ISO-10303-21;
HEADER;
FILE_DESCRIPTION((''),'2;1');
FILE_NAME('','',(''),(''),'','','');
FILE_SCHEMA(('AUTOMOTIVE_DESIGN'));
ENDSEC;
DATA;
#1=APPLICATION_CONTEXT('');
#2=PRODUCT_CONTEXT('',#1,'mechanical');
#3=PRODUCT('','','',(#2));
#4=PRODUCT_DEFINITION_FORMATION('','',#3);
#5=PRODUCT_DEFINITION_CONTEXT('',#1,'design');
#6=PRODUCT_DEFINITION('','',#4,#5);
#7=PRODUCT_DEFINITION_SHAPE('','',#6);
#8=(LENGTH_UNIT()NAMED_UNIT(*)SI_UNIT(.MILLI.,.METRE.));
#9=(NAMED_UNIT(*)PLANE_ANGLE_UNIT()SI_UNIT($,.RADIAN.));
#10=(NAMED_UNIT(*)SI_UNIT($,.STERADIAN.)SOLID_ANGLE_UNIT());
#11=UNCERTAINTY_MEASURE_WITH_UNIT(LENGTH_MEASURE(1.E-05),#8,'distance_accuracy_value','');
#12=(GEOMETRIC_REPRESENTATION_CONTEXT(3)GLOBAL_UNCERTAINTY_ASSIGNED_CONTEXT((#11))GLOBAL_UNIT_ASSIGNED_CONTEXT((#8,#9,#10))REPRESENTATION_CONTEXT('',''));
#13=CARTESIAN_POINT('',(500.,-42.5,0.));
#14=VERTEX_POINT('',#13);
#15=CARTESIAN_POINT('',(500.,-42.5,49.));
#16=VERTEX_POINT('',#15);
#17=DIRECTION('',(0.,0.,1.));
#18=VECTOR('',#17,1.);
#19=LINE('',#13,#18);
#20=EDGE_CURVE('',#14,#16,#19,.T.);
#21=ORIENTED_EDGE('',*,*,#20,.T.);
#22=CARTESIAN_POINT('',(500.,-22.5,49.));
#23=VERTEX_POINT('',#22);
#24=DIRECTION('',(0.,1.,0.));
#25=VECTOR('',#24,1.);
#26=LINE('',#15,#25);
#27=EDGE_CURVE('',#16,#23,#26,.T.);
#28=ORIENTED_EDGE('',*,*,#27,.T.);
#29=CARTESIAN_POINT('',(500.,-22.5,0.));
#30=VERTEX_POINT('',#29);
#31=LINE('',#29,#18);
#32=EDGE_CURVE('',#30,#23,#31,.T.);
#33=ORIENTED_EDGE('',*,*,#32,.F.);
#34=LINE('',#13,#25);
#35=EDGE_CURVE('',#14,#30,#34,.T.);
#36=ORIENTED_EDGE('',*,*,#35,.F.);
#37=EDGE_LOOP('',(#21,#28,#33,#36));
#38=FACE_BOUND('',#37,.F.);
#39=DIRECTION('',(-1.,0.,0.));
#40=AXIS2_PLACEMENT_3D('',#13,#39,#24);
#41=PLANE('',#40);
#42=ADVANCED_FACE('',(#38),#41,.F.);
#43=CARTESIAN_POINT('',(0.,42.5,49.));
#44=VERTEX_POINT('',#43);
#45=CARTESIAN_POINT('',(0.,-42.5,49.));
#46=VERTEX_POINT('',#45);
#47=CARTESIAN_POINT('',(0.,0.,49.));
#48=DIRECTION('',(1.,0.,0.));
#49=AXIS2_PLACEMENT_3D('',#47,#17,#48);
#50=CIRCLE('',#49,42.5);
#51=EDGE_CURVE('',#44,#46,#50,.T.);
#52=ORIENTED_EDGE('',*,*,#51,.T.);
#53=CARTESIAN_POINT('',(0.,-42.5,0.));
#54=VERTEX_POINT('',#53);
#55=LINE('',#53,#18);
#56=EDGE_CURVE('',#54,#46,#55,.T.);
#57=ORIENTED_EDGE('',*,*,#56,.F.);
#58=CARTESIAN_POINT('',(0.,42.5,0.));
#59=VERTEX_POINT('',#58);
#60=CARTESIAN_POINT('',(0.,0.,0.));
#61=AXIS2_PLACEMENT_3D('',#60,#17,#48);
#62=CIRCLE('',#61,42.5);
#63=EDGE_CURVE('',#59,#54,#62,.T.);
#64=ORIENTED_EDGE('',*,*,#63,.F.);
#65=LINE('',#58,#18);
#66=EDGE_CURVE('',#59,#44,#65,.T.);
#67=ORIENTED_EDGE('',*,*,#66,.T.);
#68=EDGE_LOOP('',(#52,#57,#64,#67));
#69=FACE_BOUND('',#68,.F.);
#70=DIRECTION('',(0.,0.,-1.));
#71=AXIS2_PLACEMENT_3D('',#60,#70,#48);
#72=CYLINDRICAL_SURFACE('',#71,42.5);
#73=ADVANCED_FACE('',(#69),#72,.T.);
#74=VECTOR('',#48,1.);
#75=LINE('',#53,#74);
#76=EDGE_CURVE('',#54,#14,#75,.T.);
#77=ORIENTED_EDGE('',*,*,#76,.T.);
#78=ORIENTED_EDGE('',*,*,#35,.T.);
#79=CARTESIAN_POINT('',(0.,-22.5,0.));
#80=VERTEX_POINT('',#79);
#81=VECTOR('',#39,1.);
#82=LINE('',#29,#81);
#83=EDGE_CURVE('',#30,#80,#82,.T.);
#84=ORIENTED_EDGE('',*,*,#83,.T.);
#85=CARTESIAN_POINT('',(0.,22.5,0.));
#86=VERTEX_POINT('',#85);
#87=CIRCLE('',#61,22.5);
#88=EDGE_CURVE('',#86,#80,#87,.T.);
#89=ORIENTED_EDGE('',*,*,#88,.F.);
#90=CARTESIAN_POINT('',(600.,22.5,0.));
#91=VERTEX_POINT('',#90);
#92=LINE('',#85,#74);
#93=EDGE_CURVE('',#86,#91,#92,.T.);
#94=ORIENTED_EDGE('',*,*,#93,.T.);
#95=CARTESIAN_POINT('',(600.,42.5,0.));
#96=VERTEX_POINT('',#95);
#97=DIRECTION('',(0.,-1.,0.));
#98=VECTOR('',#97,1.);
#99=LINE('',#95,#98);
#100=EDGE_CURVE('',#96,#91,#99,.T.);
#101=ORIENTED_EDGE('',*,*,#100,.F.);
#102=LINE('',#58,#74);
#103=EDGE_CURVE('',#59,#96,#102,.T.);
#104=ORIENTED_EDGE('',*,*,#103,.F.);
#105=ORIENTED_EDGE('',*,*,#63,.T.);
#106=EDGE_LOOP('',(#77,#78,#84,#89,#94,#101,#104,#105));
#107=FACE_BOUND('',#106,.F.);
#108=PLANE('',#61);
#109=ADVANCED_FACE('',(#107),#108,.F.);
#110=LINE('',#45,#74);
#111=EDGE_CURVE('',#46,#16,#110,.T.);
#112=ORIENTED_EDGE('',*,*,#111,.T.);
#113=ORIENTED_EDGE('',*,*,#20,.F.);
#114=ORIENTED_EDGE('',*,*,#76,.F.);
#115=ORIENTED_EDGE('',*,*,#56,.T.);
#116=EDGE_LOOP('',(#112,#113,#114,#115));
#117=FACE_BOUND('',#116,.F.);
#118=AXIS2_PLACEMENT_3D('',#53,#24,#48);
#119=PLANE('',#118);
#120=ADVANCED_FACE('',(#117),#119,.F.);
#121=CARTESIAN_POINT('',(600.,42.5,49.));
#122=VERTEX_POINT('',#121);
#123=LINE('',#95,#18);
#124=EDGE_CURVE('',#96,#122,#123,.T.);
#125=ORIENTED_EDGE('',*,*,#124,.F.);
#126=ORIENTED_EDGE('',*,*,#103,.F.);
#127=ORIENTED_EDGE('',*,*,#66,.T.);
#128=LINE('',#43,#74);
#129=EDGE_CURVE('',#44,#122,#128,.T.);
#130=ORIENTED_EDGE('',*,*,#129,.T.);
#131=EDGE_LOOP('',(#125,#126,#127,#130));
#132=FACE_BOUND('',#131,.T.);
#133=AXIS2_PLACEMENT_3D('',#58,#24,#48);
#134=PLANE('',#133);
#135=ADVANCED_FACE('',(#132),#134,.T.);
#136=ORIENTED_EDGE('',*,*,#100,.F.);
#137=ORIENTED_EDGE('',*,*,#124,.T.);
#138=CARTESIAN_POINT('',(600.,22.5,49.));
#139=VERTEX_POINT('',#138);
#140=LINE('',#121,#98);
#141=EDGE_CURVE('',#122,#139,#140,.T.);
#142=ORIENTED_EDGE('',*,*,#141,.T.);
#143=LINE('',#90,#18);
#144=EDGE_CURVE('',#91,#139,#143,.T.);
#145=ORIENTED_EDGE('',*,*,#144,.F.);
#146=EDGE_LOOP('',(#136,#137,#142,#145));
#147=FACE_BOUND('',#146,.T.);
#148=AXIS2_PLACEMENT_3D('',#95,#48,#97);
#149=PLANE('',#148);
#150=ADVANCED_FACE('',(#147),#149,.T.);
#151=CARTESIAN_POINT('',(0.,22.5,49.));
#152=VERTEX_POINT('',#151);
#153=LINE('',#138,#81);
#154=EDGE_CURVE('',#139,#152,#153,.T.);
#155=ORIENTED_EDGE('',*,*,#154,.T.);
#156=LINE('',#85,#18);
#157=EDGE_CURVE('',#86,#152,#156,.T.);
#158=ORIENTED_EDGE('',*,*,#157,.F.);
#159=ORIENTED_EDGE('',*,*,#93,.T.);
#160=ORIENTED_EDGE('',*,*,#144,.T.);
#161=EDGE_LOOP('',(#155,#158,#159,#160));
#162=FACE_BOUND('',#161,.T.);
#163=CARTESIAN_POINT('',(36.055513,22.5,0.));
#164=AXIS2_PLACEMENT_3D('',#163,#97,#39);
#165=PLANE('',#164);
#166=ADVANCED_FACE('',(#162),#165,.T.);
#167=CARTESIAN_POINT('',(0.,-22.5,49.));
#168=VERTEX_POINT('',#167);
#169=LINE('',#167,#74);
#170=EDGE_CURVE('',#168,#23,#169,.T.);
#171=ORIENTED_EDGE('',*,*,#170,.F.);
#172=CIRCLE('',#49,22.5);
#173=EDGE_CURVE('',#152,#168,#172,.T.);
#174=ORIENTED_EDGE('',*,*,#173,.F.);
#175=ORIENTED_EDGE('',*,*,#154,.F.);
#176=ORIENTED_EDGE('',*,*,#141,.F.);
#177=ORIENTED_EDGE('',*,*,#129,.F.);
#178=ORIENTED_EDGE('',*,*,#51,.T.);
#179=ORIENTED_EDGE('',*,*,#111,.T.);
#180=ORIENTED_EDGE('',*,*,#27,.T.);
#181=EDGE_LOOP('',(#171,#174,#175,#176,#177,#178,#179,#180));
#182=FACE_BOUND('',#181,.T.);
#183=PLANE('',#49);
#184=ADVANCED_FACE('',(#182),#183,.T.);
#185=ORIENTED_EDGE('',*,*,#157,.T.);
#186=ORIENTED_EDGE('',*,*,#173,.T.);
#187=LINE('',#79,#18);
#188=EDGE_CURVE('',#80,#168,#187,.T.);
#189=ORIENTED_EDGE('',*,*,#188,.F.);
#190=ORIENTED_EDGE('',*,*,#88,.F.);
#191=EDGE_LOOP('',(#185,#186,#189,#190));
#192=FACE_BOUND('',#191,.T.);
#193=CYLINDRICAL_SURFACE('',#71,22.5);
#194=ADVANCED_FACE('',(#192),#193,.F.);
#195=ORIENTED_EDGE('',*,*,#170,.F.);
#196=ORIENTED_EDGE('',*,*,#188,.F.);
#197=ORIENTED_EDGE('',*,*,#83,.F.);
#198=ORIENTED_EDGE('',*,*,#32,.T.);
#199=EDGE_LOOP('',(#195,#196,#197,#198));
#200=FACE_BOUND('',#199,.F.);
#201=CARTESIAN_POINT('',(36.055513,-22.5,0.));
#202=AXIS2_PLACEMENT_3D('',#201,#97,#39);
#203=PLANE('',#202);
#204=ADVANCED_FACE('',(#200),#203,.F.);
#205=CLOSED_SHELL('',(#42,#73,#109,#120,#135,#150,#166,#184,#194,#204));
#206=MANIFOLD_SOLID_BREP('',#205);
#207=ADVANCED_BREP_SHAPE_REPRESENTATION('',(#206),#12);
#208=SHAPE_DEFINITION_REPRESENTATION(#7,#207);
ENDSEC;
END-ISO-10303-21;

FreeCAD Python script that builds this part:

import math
import FreeCAD as App
import Part
import Sketcher

V = App.Vector

doc = App.newDocument("Part")
body = doc.addObject("PartDesign::Body", "Body")

# Sketch on XY plane
sketch1 = body.newObject("Sketcher::SketchObject", "Sketch")
sketch1.AttachmentSupport = (doc.getObject("XY_Plane"), [""])
sketch1.MapMode = "FlatFace"
sketch1.addGeometry([
    Part.ArcOfCircle(Part.Circle(V(0, 0, 0), V(0, 0, 1), 22.5), math.radians(90), math.radians(270)),  # 0
    Part.LineSegment(V(0, 22.5, 0), V(600, 22.5, 0)),  # 1
    Part.LineSegment(V(600, 22.5, 0), V(600, 42.5, 0)),  # 2
    Part.LineSegment(V(600, 42.5, 0), V(0, 42.5, 0)),  # 3
    Part.ArcOfCircle(Part.Circle(V(0, 0, 0), V(0, 0, 1), 42.5), math.radians(90), math.radians(270)),  # 4
    Part.LineSegment(V(0, -42.5, 0), V(500, -42.5, 0)),  # 5
    Part.LineSegment(V(500, -42.5, 0), V(500, -22.5, 0)),  # 6
    Part.LineSegment(V(500, -22.5, 0), V(0, -22.5, 0)),  # 7
], False)
sketch1.addConstraint([
    Sketcher.Constraint("Tangent", 0, 1, 1, 1),
    Sketcher.Constraint("Coincident", 1, 2, 2, 1),
    Sketcher.Constraint("Coincident", 2, 2, 3, 1),
    Sketcher.Constraint("Tangent", 3, 2, 4, 1),
    Sketcher.Constraint("Tangent", 4, 2, 5, 1),
    Sketcher.Constraint("Coincident", 5, 2, 6, 1),
    Sketcher.Constraint("Coincident", 6, 2, 7, 1),
    Sketcher.Constraint("Tangent", 7, 2, 0, 2),
    Sketcher.Constraint("Horizontal", 1),
    Sketcher.Constraint("Vertical", 2),
    Sketcher.Constraint("Horizontal", 3),
    Sketcher.Constraint("Horizontal", 5),
    Sketcher.Constraint("Vertical", 6),
    Sketcher.Constraint("Horizontal", 7),
    Sketcher.Constraint("Coincident", 0, 3, -1, 1),
    Sketcher.Constraint("Coincident", 4, 3, -1, 1),
    Sketcher.Constraint("Radius", 4, 42.5),
    Sketcher.Constraint("DistanceX", 1, 1, 1, 2, 600.0),
    Sketcher.Constraint("DistanceX", 5, 1, 5, 2, 500.0),
    Sketcher.Constraint("DistanceY", 2, 1, 2, 2, 20.0),
])
pad1 = body.newObject("PartDesign::Pad", "Pad")
pad1.Profile = sketch1
pad1.Length = 49

doc.recompute()
